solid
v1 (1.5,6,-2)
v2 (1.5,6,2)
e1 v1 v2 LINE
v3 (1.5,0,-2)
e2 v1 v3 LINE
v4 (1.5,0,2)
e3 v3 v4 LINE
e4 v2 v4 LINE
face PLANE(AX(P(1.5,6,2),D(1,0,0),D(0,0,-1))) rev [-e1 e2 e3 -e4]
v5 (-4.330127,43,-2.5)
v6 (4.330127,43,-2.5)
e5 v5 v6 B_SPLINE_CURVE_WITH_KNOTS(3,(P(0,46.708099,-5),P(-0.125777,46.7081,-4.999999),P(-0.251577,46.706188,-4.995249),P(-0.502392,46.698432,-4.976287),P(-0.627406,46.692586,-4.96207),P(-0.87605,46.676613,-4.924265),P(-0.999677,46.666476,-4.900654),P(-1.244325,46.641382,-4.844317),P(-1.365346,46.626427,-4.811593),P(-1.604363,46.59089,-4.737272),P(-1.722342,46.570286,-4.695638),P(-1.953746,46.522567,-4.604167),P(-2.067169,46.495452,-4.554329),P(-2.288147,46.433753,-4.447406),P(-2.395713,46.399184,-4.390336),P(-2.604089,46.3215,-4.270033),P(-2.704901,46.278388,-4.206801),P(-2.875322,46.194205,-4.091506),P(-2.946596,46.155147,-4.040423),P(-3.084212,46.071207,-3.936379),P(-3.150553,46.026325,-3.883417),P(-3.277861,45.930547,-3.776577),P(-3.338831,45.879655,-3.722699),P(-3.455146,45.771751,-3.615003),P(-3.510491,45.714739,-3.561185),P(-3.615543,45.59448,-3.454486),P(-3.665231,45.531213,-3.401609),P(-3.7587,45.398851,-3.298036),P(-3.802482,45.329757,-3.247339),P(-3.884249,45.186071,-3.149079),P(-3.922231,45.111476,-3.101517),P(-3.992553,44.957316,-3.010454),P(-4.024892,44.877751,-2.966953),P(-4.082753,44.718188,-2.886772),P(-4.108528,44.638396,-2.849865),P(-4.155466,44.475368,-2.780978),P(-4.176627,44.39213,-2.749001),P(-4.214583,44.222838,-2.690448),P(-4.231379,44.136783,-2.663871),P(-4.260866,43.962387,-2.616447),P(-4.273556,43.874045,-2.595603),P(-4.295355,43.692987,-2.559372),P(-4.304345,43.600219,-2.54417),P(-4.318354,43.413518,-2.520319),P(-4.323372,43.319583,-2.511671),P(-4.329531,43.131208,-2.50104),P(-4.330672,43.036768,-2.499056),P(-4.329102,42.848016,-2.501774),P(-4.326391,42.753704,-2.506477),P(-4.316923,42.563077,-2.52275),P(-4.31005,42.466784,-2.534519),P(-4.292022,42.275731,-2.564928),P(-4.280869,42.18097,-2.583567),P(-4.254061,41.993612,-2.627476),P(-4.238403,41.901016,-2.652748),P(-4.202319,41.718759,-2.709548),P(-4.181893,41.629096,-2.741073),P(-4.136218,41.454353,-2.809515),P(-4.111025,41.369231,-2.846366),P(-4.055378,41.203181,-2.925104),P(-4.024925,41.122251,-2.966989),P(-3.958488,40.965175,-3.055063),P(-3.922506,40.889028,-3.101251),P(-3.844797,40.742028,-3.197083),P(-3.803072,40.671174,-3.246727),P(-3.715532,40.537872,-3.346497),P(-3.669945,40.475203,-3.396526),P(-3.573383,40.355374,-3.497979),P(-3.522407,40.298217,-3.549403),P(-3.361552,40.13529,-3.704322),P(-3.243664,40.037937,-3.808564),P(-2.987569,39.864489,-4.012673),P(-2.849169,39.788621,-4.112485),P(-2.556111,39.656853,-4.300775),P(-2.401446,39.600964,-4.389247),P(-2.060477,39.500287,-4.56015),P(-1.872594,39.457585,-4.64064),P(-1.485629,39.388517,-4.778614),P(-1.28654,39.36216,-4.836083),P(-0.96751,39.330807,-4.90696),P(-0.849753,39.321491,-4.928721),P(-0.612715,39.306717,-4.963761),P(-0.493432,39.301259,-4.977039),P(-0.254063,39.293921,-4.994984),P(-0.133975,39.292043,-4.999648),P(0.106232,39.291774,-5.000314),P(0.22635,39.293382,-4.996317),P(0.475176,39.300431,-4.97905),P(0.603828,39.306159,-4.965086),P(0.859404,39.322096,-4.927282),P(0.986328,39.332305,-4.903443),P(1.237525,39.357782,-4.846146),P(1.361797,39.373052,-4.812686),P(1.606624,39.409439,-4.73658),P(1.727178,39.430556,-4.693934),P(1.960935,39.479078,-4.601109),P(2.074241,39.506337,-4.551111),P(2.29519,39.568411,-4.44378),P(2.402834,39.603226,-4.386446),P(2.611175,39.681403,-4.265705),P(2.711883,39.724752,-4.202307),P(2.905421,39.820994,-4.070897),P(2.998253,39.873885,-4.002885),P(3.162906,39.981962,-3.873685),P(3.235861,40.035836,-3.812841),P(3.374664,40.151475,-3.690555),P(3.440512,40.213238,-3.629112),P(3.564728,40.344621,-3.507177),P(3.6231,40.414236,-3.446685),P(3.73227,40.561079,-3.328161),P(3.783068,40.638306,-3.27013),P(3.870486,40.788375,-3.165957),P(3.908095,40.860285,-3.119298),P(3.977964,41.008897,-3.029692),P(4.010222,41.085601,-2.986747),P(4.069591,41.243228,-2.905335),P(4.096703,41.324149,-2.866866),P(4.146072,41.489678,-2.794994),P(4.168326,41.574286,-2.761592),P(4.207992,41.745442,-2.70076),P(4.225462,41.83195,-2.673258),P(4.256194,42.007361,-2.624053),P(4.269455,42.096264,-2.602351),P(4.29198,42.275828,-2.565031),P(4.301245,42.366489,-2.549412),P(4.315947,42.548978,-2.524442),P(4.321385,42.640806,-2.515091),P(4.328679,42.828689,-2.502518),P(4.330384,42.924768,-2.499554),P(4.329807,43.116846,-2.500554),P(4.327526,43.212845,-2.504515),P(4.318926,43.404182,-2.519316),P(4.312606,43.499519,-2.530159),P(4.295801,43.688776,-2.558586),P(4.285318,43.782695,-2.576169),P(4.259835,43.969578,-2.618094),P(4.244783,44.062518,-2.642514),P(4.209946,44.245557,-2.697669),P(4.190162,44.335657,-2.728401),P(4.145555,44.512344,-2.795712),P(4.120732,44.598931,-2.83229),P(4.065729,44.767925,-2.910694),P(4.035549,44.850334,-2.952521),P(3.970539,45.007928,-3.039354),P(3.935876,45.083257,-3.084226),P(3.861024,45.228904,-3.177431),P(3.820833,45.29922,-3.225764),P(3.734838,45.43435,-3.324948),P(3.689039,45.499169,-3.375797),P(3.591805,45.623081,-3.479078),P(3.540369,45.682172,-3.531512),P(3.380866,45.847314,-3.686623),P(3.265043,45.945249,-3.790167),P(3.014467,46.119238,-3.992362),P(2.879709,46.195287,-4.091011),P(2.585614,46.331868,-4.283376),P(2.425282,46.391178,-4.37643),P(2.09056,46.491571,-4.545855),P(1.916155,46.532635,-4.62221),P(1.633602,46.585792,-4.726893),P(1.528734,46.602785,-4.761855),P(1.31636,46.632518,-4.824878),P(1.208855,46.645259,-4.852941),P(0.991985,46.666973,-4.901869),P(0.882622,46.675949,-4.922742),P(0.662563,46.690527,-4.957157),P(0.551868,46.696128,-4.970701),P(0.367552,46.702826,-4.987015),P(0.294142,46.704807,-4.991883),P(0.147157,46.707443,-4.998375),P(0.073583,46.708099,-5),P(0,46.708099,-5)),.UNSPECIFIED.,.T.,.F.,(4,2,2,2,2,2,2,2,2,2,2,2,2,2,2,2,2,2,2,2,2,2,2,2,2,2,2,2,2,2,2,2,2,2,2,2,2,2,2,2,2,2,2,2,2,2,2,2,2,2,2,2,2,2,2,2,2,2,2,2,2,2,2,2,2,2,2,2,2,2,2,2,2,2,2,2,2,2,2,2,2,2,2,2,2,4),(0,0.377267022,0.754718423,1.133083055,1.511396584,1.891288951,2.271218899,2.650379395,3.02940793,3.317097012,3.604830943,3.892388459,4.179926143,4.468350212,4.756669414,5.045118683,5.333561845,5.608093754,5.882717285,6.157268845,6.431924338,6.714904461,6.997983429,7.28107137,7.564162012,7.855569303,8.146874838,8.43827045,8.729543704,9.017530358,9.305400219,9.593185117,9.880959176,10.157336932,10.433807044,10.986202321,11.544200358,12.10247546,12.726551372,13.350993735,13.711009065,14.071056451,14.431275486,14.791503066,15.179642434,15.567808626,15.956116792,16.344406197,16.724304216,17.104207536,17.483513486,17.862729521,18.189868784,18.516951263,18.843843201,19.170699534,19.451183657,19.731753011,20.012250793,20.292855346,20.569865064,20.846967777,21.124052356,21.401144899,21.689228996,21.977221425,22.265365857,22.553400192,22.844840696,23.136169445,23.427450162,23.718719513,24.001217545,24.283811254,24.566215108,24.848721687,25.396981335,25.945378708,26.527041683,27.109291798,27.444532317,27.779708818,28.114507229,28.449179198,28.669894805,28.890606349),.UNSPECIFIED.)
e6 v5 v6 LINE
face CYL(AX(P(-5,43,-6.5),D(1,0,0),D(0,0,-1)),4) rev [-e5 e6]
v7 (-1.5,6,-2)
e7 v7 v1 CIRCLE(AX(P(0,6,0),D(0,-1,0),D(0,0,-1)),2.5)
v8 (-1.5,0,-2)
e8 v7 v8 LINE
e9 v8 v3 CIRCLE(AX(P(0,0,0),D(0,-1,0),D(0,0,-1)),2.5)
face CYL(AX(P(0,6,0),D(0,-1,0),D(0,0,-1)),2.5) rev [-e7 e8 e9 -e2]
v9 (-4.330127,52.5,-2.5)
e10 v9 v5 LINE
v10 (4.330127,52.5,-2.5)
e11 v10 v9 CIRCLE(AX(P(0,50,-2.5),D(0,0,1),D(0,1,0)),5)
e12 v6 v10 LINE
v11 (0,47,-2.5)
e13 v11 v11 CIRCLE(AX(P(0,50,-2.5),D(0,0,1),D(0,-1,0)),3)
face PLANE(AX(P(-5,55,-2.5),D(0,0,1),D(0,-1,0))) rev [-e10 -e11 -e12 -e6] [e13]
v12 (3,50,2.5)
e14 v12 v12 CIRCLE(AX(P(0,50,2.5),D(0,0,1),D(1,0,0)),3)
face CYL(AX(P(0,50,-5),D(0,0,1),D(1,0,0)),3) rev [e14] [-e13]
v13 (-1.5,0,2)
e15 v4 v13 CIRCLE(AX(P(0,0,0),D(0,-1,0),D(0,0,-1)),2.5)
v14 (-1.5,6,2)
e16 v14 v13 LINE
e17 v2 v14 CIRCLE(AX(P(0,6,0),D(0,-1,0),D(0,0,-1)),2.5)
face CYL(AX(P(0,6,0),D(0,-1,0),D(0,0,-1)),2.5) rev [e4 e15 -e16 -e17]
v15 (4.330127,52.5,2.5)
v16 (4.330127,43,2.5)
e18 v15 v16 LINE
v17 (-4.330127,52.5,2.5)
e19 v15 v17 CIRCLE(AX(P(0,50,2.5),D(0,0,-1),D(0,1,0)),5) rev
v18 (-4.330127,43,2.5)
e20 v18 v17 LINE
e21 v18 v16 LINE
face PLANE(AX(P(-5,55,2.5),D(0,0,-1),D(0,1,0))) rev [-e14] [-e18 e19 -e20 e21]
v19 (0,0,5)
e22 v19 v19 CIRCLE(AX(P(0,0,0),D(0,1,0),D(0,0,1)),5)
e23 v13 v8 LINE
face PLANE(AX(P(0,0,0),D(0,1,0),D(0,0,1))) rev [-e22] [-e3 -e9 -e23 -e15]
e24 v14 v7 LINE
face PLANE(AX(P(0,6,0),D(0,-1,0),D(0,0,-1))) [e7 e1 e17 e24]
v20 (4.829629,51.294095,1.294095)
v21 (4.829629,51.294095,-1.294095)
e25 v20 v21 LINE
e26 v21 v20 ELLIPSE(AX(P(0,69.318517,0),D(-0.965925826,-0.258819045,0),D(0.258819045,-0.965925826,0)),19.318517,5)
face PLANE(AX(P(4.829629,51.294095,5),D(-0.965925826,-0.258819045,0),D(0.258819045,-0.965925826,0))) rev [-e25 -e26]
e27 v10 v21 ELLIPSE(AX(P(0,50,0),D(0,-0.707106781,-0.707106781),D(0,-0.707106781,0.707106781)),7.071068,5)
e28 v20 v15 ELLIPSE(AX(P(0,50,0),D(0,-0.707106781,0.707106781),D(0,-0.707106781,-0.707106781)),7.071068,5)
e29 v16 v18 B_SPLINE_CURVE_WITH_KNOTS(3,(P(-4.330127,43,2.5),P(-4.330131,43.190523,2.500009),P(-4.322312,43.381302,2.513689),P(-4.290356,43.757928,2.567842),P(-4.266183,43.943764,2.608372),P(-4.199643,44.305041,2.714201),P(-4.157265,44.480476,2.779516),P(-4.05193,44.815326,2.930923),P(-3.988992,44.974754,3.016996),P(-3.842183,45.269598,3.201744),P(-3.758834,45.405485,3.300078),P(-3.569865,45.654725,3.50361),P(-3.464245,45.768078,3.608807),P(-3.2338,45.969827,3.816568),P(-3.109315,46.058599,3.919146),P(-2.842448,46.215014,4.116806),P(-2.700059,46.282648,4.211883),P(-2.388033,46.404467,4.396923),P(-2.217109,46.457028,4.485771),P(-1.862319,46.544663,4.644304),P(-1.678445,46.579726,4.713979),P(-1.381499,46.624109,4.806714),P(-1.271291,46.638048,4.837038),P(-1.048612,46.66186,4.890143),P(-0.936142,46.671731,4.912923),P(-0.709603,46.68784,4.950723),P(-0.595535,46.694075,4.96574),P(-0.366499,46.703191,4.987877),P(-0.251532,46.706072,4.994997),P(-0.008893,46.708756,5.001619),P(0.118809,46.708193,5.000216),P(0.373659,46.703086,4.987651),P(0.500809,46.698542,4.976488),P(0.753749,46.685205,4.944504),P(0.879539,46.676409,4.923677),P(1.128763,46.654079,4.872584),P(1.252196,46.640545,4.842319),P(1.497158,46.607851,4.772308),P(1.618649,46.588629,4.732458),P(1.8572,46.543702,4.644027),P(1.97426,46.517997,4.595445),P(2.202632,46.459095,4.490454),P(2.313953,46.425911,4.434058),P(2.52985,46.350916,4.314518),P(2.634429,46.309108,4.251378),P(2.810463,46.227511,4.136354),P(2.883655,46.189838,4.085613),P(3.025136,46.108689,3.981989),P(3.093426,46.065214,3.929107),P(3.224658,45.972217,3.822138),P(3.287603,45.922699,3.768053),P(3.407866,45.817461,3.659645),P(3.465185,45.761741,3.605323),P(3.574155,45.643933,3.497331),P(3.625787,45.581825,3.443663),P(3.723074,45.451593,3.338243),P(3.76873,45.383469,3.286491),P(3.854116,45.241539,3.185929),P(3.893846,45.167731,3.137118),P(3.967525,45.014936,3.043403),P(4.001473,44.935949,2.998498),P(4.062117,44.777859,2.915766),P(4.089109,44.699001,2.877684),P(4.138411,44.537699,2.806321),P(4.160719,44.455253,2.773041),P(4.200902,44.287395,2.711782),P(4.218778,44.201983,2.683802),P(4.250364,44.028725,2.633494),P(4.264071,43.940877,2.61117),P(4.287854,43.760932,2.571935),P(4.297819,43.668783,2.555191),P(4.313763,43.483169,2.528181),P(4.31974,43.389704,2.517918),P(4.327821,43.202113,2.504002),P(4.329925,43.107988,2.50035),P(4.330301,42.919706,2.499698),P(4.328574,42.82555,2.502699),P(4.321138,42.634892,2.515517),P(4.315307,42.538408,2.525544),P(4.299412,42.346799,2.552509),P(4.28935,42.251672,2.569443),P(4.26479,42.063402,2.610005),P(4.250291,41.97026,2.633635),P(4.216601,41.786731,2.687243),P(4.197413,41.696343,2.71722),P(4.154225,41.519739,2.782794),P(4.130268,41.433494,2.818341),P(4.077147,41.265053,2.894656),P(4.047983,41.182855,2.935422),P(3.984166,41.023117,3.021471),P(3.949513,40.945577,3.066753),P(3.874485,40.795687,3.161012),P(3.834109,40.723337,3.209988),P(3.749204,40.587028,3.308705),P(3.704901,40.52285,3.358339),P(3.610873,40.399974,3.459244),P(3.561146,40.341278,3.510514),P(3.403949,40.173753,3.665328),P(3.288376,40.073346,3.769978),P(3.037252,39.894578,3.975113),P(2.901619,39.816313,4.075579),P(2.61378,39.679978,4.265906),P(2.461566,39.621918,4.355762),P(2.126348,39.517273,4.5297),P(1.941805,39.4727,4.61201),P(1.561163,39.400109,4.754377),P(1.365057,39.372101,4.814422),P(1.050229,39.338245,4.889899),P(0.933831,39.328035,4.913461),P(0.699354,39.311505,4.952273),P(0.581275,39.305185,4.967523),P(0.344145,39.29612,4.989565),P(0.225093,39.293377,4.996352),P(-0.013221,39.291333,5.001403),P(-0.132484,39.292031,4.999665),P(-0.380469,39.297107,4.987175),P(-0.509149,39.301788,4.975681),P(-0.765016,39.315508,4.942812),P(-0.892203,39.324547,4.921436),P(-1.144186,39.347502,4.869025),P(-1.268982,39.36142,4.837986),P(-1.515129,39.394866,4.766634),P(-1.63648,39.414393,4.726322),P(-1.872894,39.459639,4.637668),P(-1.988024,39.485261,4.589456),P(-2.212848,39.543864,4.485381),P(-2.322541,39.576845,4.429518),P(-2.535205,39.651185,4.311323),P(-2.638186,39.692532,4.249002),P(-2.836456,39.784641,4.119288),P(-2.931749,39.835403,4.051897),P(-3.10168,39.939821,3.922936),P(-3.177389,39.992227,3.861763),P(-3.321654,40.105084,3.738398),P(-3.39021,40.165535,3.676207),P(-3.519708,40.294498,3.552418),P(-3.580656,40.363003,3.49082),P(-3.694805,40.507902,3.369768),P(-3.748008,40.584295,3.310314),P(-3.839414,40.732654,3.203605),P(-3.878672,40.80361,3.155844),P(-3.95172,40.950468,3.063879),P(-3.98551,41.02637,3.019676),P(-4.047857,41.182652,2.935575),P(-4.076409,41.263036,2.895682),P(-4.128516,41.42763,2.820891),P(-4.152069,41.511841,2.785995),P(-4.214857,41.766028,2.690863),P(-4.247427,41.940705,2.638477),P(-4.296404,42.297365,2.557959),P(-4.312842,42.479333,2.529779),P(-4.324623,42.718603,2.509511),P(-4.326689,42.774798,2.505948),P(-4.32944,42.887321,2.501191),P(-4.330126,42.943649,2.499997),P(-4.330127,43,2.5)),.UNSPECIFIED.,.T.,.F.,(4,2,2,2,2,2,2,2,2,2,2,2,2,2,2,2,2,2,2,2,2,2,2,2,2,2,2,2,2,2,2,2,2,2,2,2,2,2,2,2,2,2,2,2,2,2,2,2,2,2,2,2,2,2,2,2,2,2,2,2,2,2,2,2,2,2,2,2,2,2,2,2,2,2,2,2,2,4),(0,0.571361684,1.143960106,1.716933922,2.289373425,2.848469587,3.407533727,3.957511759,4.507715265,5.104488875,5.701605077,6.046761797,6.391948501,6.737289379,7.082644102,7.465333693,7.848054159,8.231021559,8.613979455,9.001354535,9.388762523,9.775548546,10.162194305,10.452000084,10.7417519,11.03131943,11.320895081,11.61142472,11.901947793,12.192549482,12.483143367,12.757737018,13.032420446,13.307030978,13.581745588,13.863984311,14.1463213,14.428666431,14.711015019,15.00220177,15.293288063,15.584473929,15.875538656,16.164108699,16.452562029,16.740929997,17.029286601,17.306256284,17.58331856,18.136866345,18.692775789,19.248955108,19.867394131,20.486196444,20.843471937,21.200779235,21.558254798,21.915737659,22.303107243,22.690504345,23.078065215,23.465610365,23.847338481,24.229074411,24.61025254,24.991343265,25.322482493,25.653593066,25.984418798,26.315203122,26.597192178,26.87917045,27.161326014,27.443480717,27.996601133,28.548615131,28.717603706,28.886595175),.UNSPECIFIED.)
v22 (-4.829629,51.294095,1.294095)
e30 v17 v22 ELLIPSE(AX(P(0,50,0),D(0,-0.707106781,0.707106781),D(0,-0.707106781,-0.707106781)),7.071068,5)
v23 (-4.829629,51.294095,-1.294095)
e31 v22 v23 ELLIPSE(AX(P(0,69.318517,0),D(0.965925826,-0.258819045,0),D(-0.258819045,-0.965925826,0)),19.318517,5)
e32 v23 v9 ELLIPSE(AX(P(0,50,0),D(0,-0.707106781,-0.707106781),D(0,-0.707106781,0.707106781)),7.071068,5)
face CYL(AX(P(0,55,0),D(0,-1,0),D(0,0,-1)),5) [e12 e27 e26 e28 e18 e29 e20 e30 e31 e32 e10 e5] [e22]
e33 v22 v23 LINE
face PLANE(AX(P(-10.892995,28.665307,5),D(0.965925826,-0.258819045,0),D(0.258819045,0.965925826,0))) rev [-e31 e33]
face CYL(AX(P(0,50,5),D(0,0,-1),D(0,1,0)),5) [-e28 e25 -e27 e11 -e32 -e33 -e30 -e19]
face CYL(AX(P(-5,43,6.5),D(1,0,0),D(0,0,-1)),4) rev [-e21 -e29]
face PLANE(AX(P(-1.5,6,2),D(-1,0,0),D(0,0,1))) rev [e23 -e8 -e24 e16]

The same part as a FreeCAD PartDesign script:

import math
import FreeCAD as App
import Part
import Sketcher
from FreeCAD import Vector
Q = App.Units.Quantity

doc = App.newDocument("Part")
params = doc.addObject("Spreadsheet::Sheet", "Params")
for row, (alias, value) in enumerate([
    ("sketch1_diameter", "10 mm"),
    ("pad1_length", "55 mm"),
    ("sketch2_radius", "4 mm"),
    ("sketch2_width", "12 mm"),
    ("sketch3_diameter", "6 mm"),
    ("sketch4_radius", "5 mm"),
    ("sketch5_radius", "2.5 mm"),
    ("sketch5_height", "4 mm"),
    ("pocket4_length", "6 mm"),
], start=1):
    params.set(f"A{row}", alias)
    params.set(f"B{row}", "=" + value)
    params.setAlias(f"B{row}", alias)

body = doc.addObject("PartDesign::Body", "Body")

sketch1 = body.newObject("Sketcher::SketchObject", "Sketch")
sketch1.AttachmentSupport = (doc.getObject("XZ_Plane"), [""])
sketch1.MapMode = "FlatFace"
sketch1.addGeometry(Part.Circle(Vector(0, 0, 0), Vector(0, 0, 1), 5), False)
sketch1.addConstraint([
    Sketcher.Constraint("Coincident", 0, 3, -1, 1),
    Sketcher.Constraint("Diameter", 0, 10.0),
])
sketch1.setExpression("Constraints[1]", "Params.sketch1_diameter")
pad1 = body.newObject("PartDesign::Pad", "Pad")
pad1.Profile = sketch1
pad1.setExpression("Length", "Params.pad1_length")
pad1.Reversed = True

sketch2 = body.newObject("Sketcher::SketchObject", "Sketch001")
sketch2.AttachmentSupport = (doc.getObject("YZ_Plane"), [""])
sketch2.MapMode = "FlatFace"
sketch2.addGeometry([
    Part.LineSegment(Vector(43, 2.5, 0), Vector(55, 2.5, 0)),
    Part.LineSegment(Vector(55, 2.5, 0), Vector(55, 6.5, 0)),
    Part.LineSegment(Vector(55, 6.5, 0), Vector(39, 6.5, 0)),
    Part.ArcOfCircle(Part.Circle(Vector(43, 6.5, 0), Vector(0, 0, 1), 4), math.radians(180), math.radians(270)),
    Part.LineSegment(Vector(39, -6.5, 0), Vector(55, -6.5, 0)),
    Part.LineSegment(Vector(55, -6.5, 0), Vector(55, -2.5, 0)),
    Part.LineSegment(Vector(55, -2.5, 0), Vector(43, -2.5, 0)),
    Part.ArcOfCircle(Part.Circle(Vector(43, -6.5, 0), Vector(0, 0, 1), 4), math.radians(90), math.radians(180)),
], False)
sketch2.addConstraint([
    Sketcher.Constraint("Coincident", 0, 2, 1, 1),
    Sketcher.Constraint("Coincident", 1, 2, 2, 1),
    Sketcher.Constraint("Coincident", 2, 2, 3, 1),
    Sketcher.Constraint("Tangent", 3, 2, 0, 1),
    Sketcher.Constraint("Coincident", 4, 2, 5, 1),
    Sketcher.Constraint("Coincident", 5, 2, 6, 1),
    Sketcher.Constraint("Tangent", 6, 2, 7, 1),
    Sketcher.Constraint("Coincident", 7, 2, 4, 1),
    Sketcher.Constraint("Horizontal", 0),
    Sketcher.Constraint("Vertical", 1),
    Sketcher.Constraint("Horizontal", 2),
    Sketcher.Constraint("Horizontal", 4),
    Sketcher.Constraint("Vertical", 5),
    Sketcher.Constraint("Horizontal", 6),
    Sketcher.Constraint("Equal", 3, 7),
    Sketcher.Constraint("Symmetric", 3, 3, 7, 3, -1),
    Sketcher.Constraint("Symmetric", 1, 2, 4, 2, -1),
    Sketcher.Constraint("Horizontal", 3, 3, 1, 2),
    Sketcher.Constraint("Radius", 3, 4.0),
    Sketcher.Constraint("DistanceX", 0, 1, 0, 2, 12.0),
    Sketcher.Constraint("DistanceX", -1, 1, 3, 3, 43.0),
    Sketcher.Constraint("DistanceY", 7, 3, 3, 3, 13.0),
])
sketch2.setExpression("Constraints[18]", "Params.sketch2_radius")
sketch2.setExpression("Constraints[19]", "Params.sketch2_width")
pocket1 = body.newObject("PartDesign::Pocket", "Pocket")
pocket1.Profile = sketch2
pocket1.Type = "ThroughAll"
pocket1.Midplane = True

sketch3 = body.newObject("Sketcher::SketchObject", "Sketch002")
sketch3.AttachmentSupport = (doc.getObject("XY_Plane"), [""])
sketch3.MapMode = "FlatFace"
sketch3.AttachmentOffset = App.Placement(Vector(0, 0, 2.5), App.Rotation())
sketch3.addGeometry(Part.Circle(Vector(0, 50, 0), Vector(0, 0, 1), 3), False)
sketch3.addConstraint([
    Sketcher.Constraint("PointOnObject", 0, 3, -2),
    Sketcher.Constraint("Diameter", 0, 6.0),
    Sketcher.Constraint("DistanceY", -1, 1, 0, 3, 50.0),
])
sketch3.setExpression("Constraints[1]", "Params.sketch3_diameter")
pocket2 = body.newObject("PartDesign::Pocket", "Pocket001")
pocket2.Profile = sketch3
pocket2.Type = "ThroughAll"

sketch4 = body.newObject("Sketcher::SketchObject", "Sketch003")
sketch4.AttachmentSupport = (doc.getObject("XY_Plane"), [""])
sketch4.MapMode = "FlatFace"
sketch4.AttachmentOffset = App.Placement(Vector(0, 0, -2.5), App.Rotation())
sketch4.addGeometry([
    Part.LineSegment(Vector(11, 29, 0), Vector(5, 51, 0)),
    Part.ArcOfCircle(Part.Circle(Vector(0, 50, 0), Vector(0, 0, 1), 5), math.radians(15), math.radians(165)),
    Part.LineSegment(Vector(-5, 51, 0), Vector(-11, 29, 0)),
    Part.LineSegment(Vector(-11, 29, 0), Vector(-11, 70, 0)),
    Part.LineSegment(Vector(-11, 70, 0), Vector(11, 70, 0)),
    Part.LineSegment(Vector(11, 70, 0), Vector(11, 29, 0)),
], False)
sketch4.addConstraint([
    Sketcher.Constraint("Tangent", 0, 2, 1, 1),
    Sketcher.Constraint("Tangent", 1, 2, 2, 1),
    Sketcher.Constraint("Coincident", 2, 2, 3, 1),
    Sketcher.Constraint("Coincident", 3, 2, 4, 1),
    Sketcher.Constraint("Coincident", 4, 2, 5, 1),
    Sketcher.Constraint("Coincident", 5, 2, 0, 1),
    Sketcher.Constraint("Vertical", 3),
    Sketcher.Constraint("Horizontal", 4),
    Sketcher.Constraint("Vertical", 5),
    Sketcher.Constraint("Symmetric", 0, 2, 1, 2, -2),
    Sketcher.Constraint("Horizontal", 2, 2, 5, 2),
    Sketcher.Constraint("Radius", 1, 5.0),
    Sketcher.Constraint("Angle", 0, Q("105 deg")),
    Sketcher.Constraint("DistanceY", -1, 1, 1, 3, 50.0),
    Sketcher.Constraint("DistanceX", 4, 1, 4, 2, 21.785989),
    Sketcher.Constraint("DistanceY", 3, 1, 3, 2, 41.418067),
])
sketch4.setExpression("Constraints[11]", "Params.sketch4_radius")
pocket3 = body.newObject("PartDesign::Pocket", "Pocket002")
pocket3.Profile = sketch4
pocket3.Type = "ThroughAll"
pocket3.Reversed = True

sketch5 = body.newObject("Sketcher::SketchObject", "Sketch004")
sketch5.AttachmentSupport = (doc.getObject("XZ_Plane"), [""])
sketch5.MapMode = "FlatFace"
sketch5.addGeometry([
    Part.LineSegment(Vector(-1.5, 2, 0), Vector(-1.5, -2, 0)),
    Part.ArcOfCircle(Part.Circle(Vector(0, 0, 0), Vector(0, 0, 1), 2.5), math.radians(-127), math.radians(-53)),
    Part.LineSegment(Vector(1.5, -2, 0), Vector(1.5, 2, 0)),
    Part.ArcOfCircle(Part.Circle(Vector(0, 0, 0), Vector(0, 0, 1), 2.5), math.radians(53), math.radians(127)),
], False)
sketch5.addConstraint([
    Sketcher.Constraint("Coincident", 0, 2, 1, 1),
    Sketcher.Constraint("Coincident", 1, 2, 2, 1),
    Sketcher.Constraint("Coincident", 2, 2, 3, 1),
    Sketcher.Constraint("Coincident", 3, 2, 0, 1),
    Sketcher.Constraint("Vertical", 0),
    Sketcher.Constraint("Vertical", 2),
    Sketcher.Constraint("Coincident", 1, 3, -1, 1),
    Sketcher.Constraint("Coincident", 3, 3, -1, 1),
    Sketcher.Constraint("Equal", 1, 3),
    Sketcher.Constraint("Horizontal", 0, 2, 1, 2),
    Sketcher.Constraint("Radius", 1, 2.5),
    Sketcher.Constraint("DistanceY", 0, 2, 0, 1, 4.0),
])
sketch5.setExpression("Constraints[10]", "Params.sketch5_radius")
sketch5.setExpression("Constraints[11]", "Params.sketch5_height")
pocket4 = body.newObject("PartDesign::Pocket", "Pocket003")
pocket4.Profile = sketch5
pocket4.setExpression("Length", "Params.pocket4_length")

doc.recompute()
